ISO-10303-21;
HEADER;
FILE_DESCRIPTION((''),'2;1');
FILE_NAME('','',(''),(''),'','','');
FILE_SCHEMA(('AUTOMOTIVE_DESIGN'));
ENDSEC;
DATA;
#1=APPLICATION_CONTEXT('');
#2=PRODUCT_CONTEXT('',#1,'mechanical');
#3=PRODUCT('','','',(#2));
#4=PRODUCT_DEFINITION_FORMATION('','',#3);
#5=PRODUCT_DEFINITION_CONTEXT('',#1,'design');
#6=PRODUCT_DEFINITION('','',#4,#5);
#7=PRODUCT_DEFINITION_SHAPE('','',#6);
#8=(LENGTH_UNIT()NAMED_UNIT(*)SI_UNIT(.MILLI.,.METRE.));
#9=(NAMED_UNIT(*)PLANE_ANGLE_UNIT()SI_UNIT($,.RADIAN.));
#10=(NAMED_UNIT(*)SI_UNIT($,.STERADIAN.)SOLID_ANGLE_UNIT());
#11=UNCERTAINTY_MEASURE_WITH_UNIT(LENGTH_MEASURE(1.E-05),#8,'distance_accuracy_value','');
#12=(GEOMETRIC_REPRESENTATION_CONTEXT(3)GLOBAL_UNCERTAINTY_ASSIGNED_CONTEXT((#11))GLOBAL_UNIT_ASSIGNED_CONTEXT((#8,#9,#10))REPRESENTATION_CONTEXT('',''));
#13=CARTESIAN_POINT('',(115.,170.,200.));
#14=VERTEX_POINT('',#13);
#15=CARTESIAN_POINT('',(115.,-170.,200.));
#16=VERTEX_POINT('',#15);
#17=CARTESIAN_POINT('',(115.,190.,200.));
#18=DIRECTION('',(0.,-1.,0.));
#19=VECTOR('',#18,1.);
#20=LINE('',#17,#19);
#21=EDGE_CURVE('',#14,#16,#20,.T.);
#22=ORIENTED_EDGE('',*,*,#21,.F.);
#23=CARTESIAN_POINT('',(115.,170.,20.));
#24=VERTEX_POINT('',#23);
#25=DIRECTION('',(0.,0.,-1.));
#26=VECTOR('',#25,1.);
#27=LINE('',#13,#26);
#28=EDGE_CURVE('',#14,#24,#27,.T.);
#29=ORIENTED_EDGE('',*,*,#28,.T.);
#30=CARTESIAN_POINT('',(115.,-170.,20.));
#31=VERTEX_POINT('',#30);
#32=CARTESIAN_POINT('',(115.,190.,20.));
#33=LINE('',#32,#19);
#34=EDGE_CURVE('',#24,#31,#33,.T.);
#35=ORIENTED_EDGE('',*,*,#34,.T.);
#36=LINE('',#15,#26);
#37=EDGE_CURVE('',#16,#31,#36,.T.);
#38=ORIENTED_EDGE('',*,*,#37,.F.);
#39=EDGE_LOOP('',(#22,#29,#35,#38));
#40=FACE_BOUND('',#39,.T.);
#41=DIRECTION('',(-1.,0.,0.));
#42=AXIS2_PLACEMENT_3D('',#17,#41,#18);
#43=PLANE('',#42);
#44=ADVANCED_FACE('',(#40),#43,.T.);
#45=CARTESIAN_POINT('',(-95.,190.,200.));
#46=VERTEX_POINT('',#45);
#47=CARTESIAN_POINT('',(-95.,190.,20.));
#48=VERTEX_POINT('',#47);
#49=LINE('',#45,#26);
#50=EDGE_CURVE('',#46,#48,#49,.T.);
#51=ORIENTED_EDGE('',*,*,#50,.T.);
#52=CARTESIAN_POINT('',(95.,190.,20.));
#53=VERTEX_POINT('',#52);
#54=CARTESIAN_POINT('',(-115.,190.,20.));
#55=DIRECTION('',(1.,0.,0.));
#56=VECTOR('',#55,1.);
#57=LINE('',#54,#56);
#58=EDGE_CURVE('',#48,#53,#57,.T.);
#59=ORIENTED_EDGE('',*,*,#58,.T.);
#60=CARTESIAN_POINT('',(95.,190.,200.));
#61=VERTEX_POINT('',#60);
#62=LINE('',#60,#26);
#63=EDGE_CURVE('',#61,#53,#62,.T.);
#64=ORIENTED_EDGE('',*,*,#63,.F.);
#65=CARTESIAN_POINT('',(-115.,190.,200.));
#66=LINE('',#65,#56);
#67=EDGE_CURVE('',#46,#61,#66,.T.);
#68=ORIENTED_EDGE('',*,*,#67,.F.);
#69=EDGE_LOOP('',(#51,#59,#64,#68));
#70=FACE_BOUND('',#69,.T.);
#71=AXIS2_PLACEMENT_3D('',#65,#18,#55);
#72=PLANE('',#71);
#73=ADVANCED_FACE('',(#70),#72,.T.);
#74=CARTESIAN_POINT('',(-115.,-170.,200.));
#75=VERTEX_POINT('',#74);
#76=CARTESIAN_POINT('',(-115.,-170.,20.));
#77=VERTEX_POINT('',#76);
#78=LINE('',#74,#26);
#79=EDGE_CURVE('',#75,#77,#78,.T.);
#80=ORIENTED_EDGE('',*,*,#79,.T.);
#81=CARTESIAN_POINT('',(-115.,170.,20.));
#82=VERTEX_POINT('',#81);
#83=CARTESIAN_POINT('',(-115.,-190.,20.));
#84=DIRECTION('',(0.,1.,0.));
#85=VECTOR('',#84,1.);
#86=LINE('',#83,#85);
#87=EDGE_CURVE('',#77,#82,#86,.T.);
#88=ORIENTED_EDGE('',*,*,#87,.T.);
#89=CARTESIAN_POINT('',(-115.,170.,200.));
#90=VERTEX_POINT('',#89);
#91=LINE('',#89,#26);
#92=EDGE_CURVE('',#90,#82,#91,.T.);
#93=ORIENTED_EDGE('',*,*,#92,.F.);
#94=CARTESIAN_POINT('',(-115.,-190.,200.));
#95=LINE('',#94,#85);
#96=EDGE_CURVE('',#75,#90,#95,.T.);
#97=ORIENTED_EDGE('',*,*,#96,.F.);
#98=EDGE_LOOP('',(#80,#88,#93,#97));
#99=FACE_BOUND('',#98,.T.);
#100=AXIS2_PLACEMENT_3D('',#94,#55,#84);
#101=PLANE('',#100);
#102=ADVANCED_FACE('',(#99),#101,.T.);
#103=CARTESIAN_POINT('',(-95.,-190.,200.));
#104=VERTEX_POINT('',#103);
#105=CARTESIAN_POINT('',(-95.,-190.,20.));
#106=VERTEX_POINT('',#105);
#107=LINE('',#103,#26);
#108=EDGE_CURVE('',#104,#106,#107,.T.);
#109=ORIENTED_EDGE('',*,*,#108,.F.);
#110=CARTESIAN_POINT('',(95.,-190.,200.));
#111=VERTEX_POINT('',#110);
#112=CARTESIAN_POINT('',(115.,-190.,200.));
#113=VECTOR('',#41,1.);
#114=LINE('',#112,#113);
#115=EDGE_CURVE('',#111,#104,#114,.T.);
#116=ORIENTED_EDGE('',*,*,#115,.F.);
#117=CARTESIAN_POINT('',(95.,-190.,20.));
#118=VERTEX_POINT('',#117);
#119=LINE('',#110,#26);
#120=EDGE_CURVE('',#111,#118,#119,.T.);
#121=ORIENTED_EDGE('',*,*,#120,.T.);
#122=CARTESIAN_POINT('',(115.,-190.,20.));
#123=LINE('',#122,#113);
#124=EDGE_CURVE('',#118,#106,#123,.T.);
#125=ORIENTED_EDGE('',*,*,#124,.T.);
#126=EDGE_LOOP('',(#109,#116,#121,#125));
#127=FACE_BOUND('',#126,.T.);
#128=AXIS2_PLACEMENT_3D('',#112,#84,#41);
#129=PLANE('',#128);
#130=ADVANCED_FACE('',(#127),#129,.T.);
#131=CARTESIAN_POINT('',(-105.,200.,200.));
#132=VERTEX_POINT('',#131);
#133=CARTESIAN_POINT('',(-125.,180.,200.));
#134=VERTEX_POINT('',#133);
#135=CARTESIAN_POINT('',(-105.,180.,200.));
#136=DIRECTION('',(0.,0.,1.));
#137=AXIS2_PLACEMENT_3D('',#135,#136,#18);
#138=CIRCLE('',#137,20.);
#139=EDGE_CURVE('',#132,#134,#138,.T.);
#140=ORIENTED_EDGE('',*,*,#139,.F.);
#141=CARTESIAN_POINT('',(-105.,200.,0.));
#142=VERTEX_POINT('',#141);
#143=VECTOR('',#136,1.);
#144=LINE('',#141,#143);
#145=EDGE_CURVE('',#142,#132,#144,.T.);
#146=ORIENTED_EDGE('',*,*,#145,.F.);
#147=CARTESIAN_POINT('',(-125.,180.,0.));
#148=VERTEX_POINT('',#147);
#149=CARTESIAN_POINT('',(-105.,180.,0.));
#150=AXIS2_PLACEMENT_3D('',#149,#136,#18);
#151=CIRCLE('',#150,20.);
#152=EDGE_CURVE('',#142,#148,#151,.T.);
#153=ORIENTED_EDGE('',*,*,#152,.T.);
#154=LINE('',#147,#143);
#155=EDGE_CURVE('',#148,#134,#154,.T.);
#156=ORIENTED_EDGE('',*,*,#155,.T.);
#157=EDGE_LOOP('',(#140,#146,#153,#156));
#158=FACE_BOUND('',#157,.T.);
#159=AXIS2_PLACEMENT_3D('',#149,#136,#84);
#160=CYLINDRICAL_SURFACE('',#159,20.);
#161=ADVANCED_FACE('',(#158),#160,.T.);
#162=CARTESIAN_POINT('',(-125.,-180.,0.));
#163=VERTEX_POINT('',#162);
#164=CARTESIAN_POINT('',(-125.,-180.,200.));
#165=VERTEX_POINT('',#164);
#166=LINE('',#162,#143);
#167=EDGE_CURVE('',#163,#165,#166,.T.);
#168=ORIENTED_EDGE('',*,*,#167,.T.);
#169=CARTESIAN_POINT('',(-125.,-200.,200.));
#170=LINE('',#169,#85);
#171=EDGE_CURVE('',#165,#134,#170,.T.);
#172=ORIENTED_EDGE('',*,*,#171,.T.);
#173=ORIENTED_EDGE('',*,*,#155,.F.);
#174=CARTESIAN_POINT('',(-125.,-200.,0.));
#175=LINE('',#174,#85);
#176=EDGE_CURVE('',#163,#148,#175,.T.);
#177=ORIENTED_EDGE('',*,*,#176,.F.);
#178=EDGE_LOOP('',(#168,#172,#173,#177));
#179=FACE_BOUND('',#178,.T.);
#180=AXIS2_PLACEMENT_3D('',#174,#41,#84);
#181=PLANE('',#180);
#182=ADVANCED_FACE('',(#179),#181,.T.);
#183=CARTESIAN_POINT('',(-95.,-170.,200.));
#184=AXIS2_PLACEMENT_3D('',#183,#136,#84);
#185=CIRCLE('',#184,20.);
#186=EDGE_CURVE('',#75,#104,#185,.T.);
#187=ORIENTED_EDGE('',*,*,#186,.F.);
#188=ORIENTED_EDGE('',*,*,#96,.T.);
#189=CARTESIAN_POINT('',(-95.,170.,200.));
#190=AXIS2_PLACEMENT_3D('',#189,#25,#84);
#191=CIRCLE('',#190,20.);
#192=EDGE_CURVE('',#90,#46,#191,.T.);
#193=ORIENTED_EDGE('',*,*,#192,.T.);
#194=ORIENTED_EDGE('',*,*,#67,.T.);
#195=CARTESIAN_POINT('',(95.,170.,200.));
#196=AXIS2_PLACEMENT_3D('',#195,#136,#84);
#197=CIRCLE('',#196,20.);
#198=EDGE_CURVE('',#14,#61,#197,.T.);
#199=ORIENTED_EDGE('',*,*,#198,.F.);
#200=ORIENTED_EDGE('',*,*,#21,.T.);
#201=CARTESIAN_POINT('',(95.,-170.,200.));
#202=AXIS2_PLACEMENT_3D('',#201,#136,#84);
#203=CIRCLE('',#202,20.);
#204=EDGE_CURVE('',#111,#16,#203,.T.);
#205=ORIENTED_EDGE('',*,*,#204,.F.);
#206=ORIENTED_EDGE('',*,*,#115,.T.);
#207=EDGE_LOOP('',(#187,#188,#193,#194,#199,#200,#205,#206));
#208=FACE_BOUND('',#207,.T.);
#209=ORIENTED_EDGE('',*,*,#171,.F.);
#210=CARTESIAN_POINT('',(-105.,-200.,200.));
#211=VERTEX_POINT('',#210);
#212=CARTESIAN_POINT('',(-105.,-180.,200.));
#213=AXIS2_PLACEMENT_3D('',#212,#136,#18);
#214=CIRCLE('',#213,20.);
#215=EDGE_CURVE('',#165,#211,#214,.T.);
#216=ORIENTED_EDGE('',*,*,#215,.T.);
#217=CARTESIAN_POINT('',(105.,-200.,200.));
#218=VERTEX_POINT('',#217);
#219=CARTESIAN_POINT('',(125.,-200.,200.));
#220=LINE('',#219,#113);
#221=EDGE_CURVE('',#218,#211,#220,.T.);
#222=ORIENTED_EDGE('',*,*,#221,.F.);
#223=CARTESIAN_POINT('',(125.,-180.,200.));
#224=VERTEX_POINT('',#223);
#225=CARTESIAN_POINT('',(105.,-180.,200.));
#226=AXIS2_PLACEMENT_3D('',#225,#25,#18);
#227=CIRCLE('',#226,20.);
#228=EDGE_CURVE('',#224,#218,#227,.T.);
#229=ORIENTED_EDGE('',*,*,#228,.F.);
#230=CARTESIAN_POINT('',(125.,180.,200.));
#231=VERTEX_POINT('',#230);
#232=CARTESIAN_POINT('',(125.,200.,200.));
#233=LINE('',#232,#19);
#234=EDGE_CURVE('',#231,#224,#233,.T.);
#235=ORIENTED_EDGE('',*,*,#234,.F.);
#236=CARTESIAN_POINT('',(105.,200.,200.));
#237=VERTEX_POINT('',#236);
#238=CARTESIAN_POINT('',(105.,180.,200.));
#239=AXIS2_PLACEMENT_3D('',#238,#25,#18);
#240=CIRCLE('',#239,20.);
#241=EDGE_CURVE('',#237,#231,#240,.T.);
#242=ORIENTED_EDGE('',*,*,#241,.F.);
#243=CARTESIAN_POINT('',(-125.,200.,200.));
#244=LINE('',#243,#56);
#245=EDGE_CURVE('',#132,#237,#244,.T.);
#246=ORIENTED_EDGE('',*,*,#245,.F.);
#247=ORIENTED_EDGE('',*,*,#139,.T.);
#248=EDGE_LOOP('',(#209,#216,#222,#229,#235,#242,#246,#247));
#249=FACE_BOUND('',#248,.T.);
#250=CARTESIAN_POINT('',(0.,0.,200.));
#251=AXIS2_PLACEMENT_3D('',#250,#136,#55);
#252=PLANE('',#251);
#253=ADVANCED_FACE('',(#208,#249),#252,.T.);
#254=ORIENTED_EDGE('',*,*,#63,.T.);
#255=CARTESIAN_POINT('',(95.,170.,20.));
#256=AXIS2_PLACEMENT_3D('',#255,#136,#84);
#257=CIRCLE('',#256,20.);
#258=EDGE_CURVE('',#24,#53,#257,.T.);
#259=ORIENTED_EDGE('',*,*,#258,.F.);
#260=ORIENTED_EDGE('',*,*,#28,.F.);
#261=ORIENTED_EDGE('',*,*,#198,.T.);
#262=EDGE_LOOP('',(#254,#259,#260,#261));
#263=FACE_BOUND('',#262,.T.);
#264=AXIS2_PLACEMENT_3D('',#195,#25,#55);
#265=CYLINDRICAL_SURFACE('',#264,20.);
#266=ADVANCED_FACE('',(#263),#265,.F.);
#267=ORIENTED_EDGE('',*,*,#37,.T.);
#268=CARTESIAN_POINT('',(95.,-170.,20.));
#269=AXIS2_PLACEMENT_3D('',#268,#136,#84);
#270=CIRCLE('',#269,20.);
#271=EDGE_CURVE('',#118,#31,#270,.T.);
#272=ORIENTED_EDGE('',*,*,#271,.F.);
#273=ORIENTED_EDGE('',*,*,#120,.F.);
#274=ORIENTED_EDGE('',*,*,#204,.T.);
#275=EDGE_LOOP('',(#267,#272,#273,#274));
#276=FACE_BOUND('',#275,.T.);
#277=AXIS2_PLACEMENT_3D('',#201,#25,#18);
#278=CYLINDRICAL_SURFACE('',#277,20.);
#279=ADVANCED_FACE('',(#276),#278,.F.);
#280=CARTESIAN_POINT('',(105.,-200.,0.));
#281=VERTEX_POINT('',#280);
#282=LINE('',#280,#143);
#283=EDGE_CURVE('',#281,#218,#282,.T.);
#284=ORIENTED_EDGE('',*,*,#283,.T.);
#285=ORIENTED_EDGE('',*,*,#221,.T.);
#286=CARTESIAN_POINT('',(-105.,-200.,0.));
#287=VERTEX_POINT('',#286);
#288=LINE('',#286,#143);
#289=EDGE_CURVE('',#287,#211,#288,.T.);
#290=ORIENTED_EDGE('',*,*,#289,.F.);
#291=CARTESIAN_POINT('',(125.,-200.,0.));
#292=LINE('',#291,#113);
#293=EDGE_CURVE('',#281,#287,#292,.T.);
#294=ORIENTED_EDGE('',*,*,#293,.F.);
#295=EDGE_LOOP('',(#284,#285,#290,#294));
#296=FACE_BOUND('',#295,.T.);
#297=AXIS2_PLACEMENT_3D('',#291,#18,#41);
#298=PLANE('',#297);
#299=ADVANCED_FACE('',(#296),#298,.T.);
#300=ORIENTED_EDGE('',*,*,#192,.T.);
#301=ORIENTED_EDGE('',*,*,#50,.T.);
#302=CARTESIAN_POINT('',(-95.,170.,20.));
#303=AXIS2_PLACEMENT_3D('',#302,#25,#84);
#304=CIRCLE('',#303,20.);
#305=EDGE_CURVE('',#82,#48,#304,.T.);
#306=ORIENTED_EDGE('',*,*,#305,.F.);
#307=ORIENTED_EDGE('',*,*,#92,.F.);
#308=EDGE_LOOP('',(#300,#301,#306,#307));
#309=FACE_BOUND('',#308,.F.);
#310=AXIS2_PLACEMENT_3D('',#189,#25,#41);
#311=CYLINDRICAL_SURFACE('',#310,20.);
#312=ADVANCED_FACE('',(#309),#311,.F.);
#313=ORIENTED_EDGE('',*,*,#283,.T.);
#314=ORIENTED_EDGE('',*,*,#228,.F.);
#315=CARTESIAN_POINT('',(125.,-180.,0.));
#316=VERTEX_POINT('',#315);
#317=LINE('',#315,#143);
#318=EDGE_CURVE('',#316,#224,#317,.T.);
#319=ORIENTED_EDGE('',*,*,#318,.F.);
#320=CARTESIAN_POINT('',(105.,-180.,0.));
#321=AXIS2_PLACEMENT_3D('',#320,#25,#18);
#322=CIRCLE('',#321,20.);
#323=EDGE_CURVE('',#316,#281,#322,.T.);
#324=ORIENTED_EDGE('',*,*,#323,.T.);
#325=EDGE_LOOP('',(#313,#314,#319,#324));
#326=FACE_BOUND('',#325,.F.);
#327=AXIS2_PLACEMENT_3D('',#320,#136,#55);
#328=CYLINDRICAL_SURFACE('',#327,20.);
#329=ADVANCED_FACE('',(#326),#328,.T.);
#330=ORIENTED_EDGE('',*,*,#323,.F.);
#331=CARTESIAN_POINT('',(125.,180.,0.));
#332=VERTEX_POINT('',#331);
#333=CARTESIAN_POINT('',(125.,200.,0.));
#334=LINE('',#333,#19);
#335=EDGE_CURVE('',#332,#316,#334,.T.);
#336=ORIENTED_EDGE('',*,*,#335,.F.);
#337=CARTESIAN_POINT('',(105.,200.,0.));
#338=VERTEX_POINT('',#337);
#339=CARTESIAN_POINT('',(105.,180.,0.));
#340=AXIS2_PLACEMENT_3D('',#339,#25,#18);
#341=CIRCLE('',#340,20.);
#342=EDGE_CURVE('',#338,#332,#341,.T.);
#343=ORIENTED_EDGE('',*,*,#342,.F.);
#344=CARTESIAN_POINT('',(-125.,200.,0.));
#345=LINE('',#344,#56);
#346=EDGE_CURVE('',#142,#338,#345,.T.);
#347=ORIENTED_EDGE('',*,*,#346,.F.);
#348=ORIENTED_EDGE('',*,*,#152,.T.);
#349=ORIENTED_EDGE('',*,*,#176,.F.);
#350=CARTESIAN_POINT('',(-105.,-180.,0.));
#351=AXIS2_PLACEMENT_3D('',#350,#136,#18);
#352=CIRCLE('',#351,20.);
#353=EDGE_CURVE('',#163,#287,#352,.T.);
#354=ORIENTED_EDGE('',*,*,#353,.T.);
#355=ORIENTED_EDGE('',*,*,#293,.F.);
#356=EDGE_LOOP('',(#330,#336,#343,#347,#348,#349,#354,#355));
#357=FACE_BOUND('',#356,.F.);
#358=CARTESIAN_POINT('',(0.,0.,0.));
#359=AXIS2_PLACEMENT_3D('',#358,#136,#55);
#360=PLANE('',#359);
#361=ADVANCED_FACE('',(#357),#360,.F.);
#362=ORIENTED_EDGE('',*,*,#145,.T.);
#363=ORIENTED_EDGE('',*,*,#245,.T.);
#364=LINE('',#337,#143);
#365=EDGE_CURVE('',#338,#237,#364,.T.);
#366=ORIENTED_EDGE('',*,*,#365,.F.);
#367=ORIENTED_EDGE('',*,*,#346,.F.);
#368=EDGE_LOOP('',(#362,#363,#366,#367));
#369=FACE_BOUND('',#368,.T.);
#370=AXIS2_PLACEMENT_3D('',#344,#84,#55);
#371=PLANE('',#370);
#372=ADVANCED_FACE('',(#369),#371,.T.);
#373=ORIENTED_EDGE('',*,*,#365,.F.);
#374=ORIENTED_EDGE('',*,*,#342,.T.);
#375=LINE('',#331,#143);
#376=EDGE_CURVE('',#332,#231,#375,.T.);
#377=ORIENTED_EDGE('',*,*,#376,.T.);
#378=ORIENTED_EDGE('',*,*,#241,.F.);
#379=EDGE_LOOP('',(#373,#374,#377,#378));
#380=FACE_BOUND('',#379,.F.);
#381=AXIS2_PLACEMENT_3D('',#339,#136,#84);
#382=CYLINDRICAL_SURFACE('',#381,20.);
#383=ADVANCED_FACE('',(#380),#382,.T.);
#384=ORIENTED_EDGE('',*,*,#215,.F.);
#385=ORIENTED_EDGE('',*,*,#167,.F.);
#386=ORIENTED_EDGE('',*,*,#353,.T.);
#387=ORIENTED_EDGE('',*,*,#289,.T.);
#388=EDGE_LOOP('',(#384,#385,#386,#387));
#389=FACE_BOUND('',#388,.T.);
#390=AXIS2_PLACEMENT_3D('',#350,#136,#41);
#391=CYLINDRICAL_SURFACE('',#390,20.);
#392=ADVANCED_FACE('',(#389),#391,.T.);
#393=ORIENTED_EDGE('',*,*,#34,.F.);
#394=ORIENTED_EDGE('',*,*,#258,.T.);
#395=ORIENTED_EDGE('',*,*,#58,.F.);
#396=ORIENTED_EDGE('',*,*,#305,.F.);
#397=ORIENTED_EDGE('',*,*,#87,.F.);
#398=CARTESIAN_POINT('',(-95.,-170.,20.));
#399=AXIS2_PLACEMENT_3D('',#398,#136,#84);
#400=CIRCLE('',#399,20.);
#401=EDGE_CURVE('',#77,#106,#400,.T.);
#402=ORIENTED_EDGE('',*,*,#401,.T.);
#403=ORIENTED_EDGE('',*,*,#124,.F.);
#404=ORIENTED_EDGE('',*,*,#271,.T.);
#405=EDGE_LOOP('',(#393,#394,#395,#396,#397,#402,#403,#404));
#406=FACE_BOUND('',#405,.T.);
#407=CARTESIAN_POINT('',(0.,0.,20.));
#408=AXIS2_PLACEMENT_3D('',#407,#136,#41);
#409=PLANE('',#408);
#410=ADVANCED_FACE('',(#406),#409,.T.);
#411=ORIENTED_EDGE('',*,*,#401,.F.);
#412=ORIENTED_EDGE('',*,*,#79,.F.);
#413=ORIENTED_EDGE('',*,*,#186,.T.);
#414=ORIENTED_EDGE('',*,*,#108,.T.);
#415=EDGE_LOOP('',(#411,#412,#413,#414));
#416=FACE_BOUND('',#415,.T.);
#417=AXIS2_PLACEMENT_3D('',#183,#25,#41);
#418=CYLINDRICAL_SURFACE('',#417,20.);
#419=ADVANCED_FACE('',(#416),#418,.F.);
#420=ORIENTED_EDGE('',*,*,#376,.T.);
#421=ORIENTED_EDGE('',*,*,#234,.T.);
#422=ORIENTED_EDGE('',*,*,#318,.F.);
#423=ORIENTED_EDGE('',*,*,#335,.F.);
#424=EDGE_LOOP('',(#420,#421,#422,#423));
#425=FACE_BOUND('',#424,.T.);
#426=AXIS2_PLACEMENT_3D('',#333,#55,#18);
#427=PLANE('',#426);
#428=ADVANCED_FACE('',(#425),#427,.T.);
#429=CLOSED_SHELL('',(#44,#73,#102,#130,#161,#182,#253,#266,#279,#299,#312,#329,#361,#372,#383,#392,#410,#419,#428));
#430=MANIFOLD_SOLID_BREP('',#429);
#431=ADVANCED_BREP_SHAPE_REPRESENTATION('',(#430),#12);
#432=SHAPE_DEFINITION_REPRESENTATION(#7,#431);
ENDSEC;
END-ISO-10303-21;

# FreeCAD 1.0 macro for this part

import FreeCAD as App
import Part
import Sketcher

V = App.Vector
Q = App.Units.Quantity


def edges_at(feature, points):
    """Names of the edges that pass closest to the given points."""
    edges = feature.Shape.Edges
    near = lambda p: min(range(len(edges)), key=lambda i: edges[i].distToShape(Part.Vertex(*p))[0])
    return sorted({f"Edge{near(p) + 1}" for p in points})

doc = App.newDocument("Part")
body = doc.addObject("PartDesign::Body", "Body")

sketch1 = body.newObject("Sketcher::SketchObject", "Sketch")
sketch1.AttachmentSupport = (doc.getObject("XY_Plane"), [""])
sketch1.MapMode = "FlatFace"
sketch1.addGeometry([
    Part.LineSegment(V(125, 200, 0), V(-125, 200, 0)),
    Part.LineSegment(V(-125, 200, 0), V(-125, -200, 0)),
    Part.LineSegment(V(-125, -200, 0), V(125, -200, 0)),
    Part.LineSegment(V(125, -200, 0), V(125, 200, 0)),
], False)
sketch1.addConstraint([
    Sketcher.Constraint("Coincident", 0, 2, 1, 1),
    Sketcher.Constraint("Coincident", 1, 2, 2, 1),
    Sketcher.Constraint("Coincident", 2, 2, 3, 1),
    Sketcher.Constraint("Coincident", 3, 2, 0, 1),
    Sketcher.Constraint("Horizontal", 0),
    Sketcher.Constraint("Vertical", 1),
    Sketcher.Constraint("Horizontal", 2),
    Sketcher.Constraint("Vertical", 3),
    Sketcher.Constraint("Symmetric", 0, 2, 2, 2, -1, 1),
    Sketcher.Constraint("DistanceX", 0, 2, 0, 1, Q("250 mm")),
    Sketcher.Constraint("DistanceY", 1, 2, 1, 1, Q("400 mm")),
])
pad1 = body.newObject("PartDesign::Pad", "Pad")
pad1.Profile = sketch1
pad1.Length = 200

sketch2 = body.newObject("Sketcher::SketchObject", "Sketch001")
sketch2.AttachmentSupport = (doc.getObject("XY_Plane"), [""])
sketch2.MapMode = "FlatFace"
sketch2.AttachmentOffset = App.Placement(V(0, 0, 200), App.Rotation())
sketch2.addGeometry([
    Part.LineSegment(V(115, 190, 0), V(-115, 190, 0)),
    Part.LineSegment(V(-115, 190, 0), V(-115, -190, 0)),
    Part.LineSegment(V(-115, -190, 0), V(115, -190, 0)),
    Part.LineSegment(V(115, -190, 0), V(115, 190, 0)),
], False)
sketch2.addConstraint([
    Sketcher.Constraint("Coincident", 0, 2, 1, 1),
    Sketcher.Constraint("Coincident", 1, 2, 2, 1),
    Sketcher.Constraint("Coincident", 2, 2, 3, 1),
    Sketcher.Constraint("Coincident", 3, 2, 0, 1),
    Sketcher.Constraint("Horizontal", 0),
    Sketcher.Constraint("Vertical", 1),
    Sketcher.Constraint("Horizontal", 2),
    Sketcher.Constraint("Vertical", 3),
    Sketcher.Constraint("Symmetric", 0, 2, 2, 2, -1, 1),
    Sketcher.Constraint("DistanceX", 0, 2, 0, 1, Q("230 mm")),
    Sketcher.Constraint("DistanceY", 1, 2, 1, 1, Q("380 mm")),
])
pocket1 = body.newObject("PartDesign::Pocket", "Pocket")
pocket1.Profile = sketch2
pocket1.Length = 180
doc.recompute()

fillet = body.newObject("PartDesign::Fillet", "Fillet")
fillet.Base = (pocket1, edges_at(pocket1, [
    (-125, -200, 100),
    (125, -200, 100),
    (125, 200, 100),
    (-125, 200, 100),
]))
fillet.Radius = 20
doc.recompute()

fillet2 = body.newObject("PartDesign::Fillet", "Fillet001")
fillet2.Base = (fillet, edges_at(fillet, [
    (115, -190, 110),
    (-115, -190, 110),
    (115, 190, 110),
    (-115, 190, 110),
]))
fillet2.Radius = 20

doc.recompute()
